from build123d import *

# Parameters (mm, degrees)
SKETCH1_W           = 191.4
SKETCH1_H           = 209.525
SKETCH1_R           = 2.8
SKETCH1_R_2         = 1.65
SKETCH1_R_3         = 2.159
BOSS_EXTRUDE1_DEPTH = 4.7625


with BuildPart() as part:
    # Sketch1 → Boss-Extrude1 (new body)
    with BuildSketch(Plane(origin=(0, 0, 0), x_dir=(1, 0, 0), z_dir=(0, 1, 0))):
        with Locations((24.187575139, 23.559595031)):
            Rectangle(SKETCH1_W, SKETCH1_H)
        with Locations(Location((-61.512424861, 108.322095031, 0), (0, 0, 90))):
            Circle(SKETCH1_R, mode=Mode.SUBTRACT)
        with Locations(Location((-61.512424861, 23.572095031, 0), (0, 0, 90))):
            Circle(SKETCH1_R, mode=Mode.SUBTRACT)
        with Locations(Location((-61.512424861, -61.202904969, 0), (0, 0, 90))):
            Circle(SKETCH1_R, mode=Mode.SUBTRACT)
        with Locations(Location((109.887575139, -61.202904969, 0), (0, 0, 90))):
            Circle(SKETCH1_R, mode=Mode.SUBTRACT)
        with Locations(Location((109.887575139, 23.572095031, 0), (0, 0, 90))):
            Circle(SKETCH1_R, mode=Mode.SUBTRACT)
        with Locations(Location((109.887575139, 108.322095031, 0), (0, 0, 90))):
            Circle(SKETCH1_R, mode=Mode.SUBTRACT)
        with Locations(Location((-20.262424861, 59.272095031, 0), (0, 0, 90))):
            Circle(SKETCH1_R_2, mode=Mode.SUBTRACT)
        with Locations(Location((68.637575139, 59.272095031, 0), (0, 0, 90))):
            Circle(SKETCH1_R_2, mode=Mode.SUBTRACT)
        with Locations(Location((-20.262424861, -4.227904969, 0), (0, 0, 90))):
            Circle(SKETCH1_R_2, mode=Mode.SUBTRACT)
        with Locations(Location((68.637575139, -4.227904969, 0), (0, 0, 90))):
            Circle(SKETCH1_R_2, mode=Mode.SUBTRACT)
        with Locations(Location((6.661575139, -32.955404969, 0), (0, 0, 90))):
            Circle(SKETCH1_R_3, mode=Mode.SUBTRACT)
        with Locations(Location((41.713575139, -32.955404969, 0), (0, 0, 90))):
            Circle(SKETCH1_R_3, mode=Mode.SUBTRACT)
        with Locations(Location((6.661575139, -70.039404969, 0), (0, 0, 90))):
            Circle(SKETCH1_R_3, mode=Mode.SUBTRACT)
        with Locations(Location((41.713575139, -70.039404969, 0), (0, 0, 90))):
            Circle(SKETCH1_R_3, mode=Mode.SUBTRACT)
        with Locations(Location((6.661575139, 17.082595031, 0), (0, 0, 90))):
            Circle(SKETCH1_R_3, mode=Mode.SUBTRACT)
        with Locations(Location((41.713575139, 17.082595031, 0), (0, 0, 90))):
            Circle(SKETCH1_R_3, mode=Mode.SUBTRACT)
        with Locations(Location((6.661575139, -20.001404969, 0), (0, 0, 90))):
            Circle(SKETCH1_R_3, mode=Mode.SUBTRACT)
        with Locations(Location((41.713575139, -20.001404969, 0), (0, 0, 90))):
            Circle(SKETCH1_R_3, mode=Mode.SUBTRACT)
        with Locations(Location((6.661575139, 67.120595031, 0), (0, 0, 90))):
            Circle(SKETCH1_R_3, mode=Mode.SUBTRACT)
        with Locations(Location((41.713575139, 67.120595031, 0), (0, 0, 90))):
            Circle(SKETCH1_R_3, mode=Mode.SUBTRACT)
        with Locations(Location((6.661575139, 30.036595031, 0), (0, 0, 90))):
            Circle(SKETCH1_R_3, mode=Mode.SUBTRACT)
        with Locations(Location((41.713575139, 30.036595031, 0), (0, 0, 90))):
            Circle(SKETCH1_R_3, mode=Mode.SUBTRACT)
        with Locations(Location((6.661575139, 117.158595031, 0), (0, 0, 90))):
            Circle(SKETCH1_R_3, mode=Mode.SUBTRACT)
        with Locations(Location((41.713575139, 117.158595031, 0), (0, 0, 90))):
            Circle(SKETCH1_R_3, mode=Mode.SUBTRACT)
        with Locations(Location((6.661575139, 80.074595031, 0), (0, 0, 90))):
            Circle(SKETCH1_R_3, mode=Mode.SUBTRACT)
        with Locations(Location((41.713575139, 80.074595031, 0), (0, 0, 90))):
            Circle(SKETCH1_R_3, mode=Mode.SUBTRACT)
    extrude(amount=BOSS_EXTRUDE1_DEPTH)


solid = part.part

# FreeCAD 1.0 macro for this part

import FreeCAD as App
import Part
import Sketcher

V = App.Vector

doc = App.newDocument("Part")
body = doc.addObject("PartDesign::Body", "Body")

# Sketch on XZ plane
sketch1 = body.newObject("Sketcher::SketchObject", "Sketch")
sketch1.AttachmentSupport = (doc.getObject("XZ_Plane"), [""])
sketch1.MapMode = "FlatFace"
sketch1.addGeometry([
    Part.LineSegment(V(-71.5, -128.3, 0), V(-71.5, 81.2, 0)),  # 0
    Part.LineSegment(V(-71.5, 81.2, 0), V(119.9, 81.2, 0)),  # 1
    Part.LineSegment(V(119.9, 81.2, 0), V(119.9, -128.3, 0)),  # 2
    Part.LineSegment(V(119.9, -128.3, 0), V(-71.5, -128.3, 0)),  # 3
    Part.Circle(V(-61.5, 61.2, 0), V(0, 0, 1), 2.8),  # 4
    Part.Circle(V(6.7, 70, 0), V(0, 0, 1), 2.2),  # 5
    Part.Circle(V(6.7, 33, 0), V(0, 0, 1), 2.2),  # 6
    Part.Circle(V(-20.3, 4.2, 0), V(0, 0, 1), 1.6),  # 7
    Part.Circle(V(6.7, 20, 0), V(0, 0, 1), 2.2),  # 8
    Part.Circle(V(6.7, -17.1, 0), V(0, 0, 1), 2.2),  # 9
    Part.Circle(V(41.7, 70, 0), V(0, 0, 1), 2.2),  # 10
    Part.Circle(V(41.7, 33, 0), V(0, 0, 1), 2.2),  # 11
    Part.Circle(V(109.9, 61.2, 0), V(0, 0, 1), 2.8),  # 12
    Part.Circle(V(41.7, 20, 0), V(0, 0, 1), 2.2),  # 13
    Part.Circle(V(41.7, -17.1, 0), V(0, 0, 1), 2.2),  # 14
    Part.Circle(V(68.6, 4.2, 0), V(0, 0, 1), 1.6),  # 15
    Part.Circle(V(-61.5, -23.6, 0), V(0, 0, 1), 2.8),  # 16
    Part.Circle(V(-20.3, -59.3, 0), V(0, 0, 1), 1.6),  # 17
    Part.Circle(V(6.7, -30, 0), V(0, 0, 1), 2.2),  # 18
    Part.Circle(V(6.7, -67.1, 0), V(0, 0, 1), 2.2),  # 19
    Part.Circle(V(-61.5, -108.3, 0), V(0, 0, 1), 2.8),  # 20
    Part.Circle(V(6.7, -80.1, 0), V(0, 0, 1), 2.2),  # 21
    Part.Circle(V(6.7, -117.2, 0), V(0, 0, 1), 2.2),  # 22
    Part.Circle(V(41.7, -30, 0), V(0, 0, 1), 2.2),  # 23
    Part.Circle(V(41.7, -67.1, 0), V(0, 0, 1), 2.2),  # 24
    Part.Circle(V(109.9, -23.6, 0), V(0, 0, 1), 2.8),  # 25
    Part.Circle(V(68.6, -59.3, 0), V(0, 0, 1), 1.6),  # 26
    Part.Circle(V(41.7, -80.1, 0), V(0, 0, 1), 2.2),  # 27
    Part.Circle(V(41.7, -117.2, 0), V(0, 0, 1), 2.2),  # 28
    Part.Circle(V(109.9, -108.3, 0), V(0, 0, 1), 2.8),  # 29
], False)
sketch1.addConstraint([
    Sketcher.Constraint("Coincident", 0, 2, 1, 1),
    Sketcher.Constraint("Coincident", 1, 2, 2, 1),
    Sketcher.Constraint("Coincident", 2, 2, 3, 1),
    Sketcher.Constraint("Coincident", 3, 2, 0, 1),
    Sketcher.Constraint("Vertical", 0),
    Sketcher.Constraint("Horizontal", 1),
    Sketcher.Constraint("Vertical", 2),
    Sketcher.Constraint("Horizontal", 3),
    Sketcher.Constraint("Equal", 5, 6),
    Sketcher.Constraint("Equal", 6, 8),
    Sketcher.Constraint("Equal", 8, 9),
    Sketcher.Constraint("Equal", 9, 10),
    Sketcher.Constraint("Equal", 10, 11),
    Sketcher.Constraint("Equal", 4, 12),
    Sketcher.Constraint("Equal", 11, 13),
    Sketcher.Constraint("Equal", 13, 14),
    Sketcher.Constraint("Equal", 7, 15),
    Sketcher.Constraint("Equal", 12, 16),
    Sketcher.Constraint("Equal", 15, 17),
    Sketcher.Constraint("Equal", 14, 18),
    Sketcher.Constraint("Equal", 18, 19),
    Sketcher.Constraint("Equal", 16, 20),
    Sketcher.Constraint("Equal", 19, 21),
    Sketcher.Constraint("Equal", 21, 22),
    Sketcher.Constraint("Equal", 22, 23),
    Sketcher.Constraint("Equal", 23, 24),
    Sketcher.Constraint("Equal", 20, 25),
    Sketcher.Constraint("Equal", 17, 26),
    Sketcher.Constraint("Equal", 24, 27),
    Sketcher.Constraint("Equal", 27, 28),
    Sketcher.Constraint("Equal", 25, 29),
    Sketcher.Constraint("Horizontal", 5, 3, 10, 3),
    Sketcher.Constraint("Horizontal", 6, 3, 11, 3),
    Sketcher.Constraint("Horizontal", 4, 3, 12, 3),
    Sketcher.Constraint("Horizontal", 8, 3, 13, 3),
    Sketcher.Constraint("Horizontal", 9, 3, 14, 3),
    Sketcher.Constraint("Horizontal", 7, 3, 15, 3),
    Sketcher.Constraint("Horizontal", 18, 3, 23, 3),
    Sketcher.Constraint("Horizontal", 19, 3, 24, 3),
    Sketcher.Constraint("Horizontal", 16, 3, 25, 3),
    Sketcher.Constraint("Horizontal", 17, 3, 26, 3),
    Sketcher.Constraint("Horizontal", 21, 3, 27, 3),
    Sketcher.Constraint("Horizontal", 22, 3, 28, 3),
    Sketcher.Constraint("Horizontal", 20, 3, 29, 3),
    Sketcher.Constraint("Vertical", 5, 3, 6, 3),
    Sketcher.Constraint("Vertical", 6, 3, 8, 3),
    Sketcher.Constraint("Vertical", 8, 3, 9, 3),
    Sketcher.Constraint("Vertical", 10, 3, 11, 3),
    Sketcher.Constraint("Vertical", 11, 3, 13, 3),
    Sketcher.Constraint("Vertical", 13, 3, 14, 3),
    Sketcher.Constraint("Vertical", 4, 3, 16, 3),
    Sketcher.Constraint("Vertical", 7, 3, 17, 3),
    Sketcher.Constraint("Vertical", 9, 3, 18, 3),
    Sketcher.Constraint("Vertical", 18, 3, 19, 3),
    Sketcher.Constraint("Vertical", 16, 3, 20, 3),
    Sketcher.Constraint("Vertical", 19, 3, 21, 3),
    Sketcher.Constraint("Vertical", 21, 3, 22, 3),
    Sketcher.Constraint("Vertical", 14, 3, 23, 3),
    Sketcher.Constraint("Vertical", 23, 3, 24, 3),
    Sketcher.Constraint("Vertical", 12, 3, 25, 3),
    Sketcher.Constraint("Vertical", 15, 3, 26, 3),
    Sketcher.Constraint("Vertical", 24, 3, 27, 3),
    Sketcher.Constraint("Vertical", 27, 3, 28, 3),
    Sketcher.Constraint("Vertical", 25, 3, 29, 3),
    Sketcher.Constraint("Diameter", 4, 5.6),
    Sketcher.Constraint("Diameter", 7, 3.3),
    Sketcher.Constraint("Diameter", 5, 4.318),
    Sketcher.Constraint("DistanceX", 1, 1, 1, 2, 191.4),
    Sketcher.Constraint("DistanceX", 0, 2, 4, 3, 10.0),
    Sketcher.Constraint("DistanceY", 4, 3, 0, 2, 20.0),
    Sketcher.Constraint("DistanceX", 12, 3, 1, 2, 10.0),
    Sketcher.Constraint("DistanceY", 2, 2, 29, 3, 20.0),
    Sketcher.Constraint("DistanceY", 16, 3, 7, 3, 27.8),
    Sketcher.Constraint("DistanceY", 17, 3, 16, 3, 35.7),
    Sketcher.Constraint("DistanceY", 0, 1, 0, 2, 209.525),
    Sketcher.Constraint("DistanceX", 4, 3, 7, 3, 41.25),
    Sketcher.Constraint("DistanceY", 20, 3, 17, 3, 49.05),
    Sketcher.Constraint("DistanceX", 15, 3, 25, 3, 41.25),
    Sketcher.Constraint("DistanceX", 4, 3, 5, 3, 68.174),
    Sketcher.Constraint("DistanceY", 6, 3, 5, 3, 37.084),
    Sketcher.Constraint("DistanceY", 8, 3, 6, 3, 12.954),
    Sketcher.Constraint("DistanceY", 9, 3, 8, 3, 37.084),
    Sketcher.Constraint("DistanceX", 5, 3, 10, 3, 35.052),
    Sketcher.Constraint("DistanceY", 18, 3, 9, 3, 12.954),
    Sketcher.Constraint("DistanceY", 19, 3, 18, 3, 37.084),
    Sketcher.Constraint("DistanceY", 21, 3, 19, 3, 12.954),
    Sketcher.Constraint("DistanceY", 22, 3, 21, 3, 37.084),
    Sketcher.Constraint("DistanceY", 4, 3, 5, 3, 8.8365),
    Sketcher.Constraint("DistanceX", 4, 3, -1, 1, 61.512425),
    Sketcher.Constraint("DistanceY", -1, 1, 4, 3, 61.202905),
])
pad1 = body.newObject("PartDesign::Pad", "Pad")
pad1.Profile = sketch1
pad1.Length = 4.7625
pad1.Reversed = True

doc.recompute()
